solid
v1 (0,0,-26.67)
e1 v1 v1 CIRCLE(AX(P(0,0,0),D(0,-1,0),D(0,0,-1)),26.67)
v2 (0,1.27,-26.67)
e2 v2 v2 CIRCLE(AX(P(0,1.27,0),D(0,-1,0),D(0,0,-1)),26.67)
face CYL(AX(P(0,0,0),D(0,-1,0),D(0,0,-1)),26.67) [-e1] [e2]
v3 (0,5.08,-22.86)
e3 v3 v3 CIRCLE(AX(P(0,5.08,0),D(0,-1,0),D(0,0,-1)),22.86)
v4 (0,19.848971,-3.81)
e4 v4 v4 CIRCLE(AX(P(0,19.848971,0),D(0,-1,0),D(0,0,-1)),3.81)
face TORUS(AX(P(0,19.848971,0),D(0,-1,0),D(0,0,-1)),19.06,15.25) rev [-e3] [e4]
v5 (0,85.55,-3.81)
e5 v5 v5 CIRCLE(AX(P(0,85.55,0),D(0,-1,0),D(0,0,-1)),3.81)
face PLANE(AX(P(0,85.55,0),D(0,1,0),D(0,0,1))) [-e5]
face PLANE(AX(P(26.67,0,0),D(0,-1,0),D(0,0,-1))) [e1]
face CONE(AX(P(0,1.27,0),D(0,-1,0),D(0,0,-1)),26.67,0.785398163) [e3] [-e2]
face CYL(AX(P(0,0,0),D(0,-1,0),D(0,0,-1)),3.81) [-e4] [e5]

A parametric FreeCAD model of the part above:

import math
import FreeCAD as App
import Part
import Sketcher
from FreeCAD import Vector
Q = App.Units.Quantity

doc = App.newDocument("Part")
body = doc.addObject("PartDesign::Body", "Body")

sketch1 = doc.addObject("Sketcher::SketchObject", "Sketch")
body.addObject(sketch1)
sketch1.AttachmentSupport = (doc.XY_Plane, [""])
sketch1.MapMode = "FlatFace"
sketch1.addGeometry(Part.LineSegment(Vector(0, 85.55, 0), Vector(0, 0, 0)), False)
sketch1.addGeometry(Part.LineSegment(Vector(0, 0, 0), Vector(26.67, 0, 0)), False)
sketch1.addGeometry(Part.LineSegment(Vector(26.67, 0, 0), Vector(26.67, 1.27, 0)), False)
sketch1.addGeometry(Part.LineSegment(Vector(26.67, 1.27, 0), Vector(22.86, 5.08, 0)), False)
sketch1.addGeometry(Part.ArcOfCircle(Part.Circle(Vector(19.06, 19.848971, 0), Vector(0, 0, 1), 15.25), math.radians(-180), math.radians(-75.570986)), False)
sketch1.addGeometry(Part.LineSegment(Vector(3.81, 19.848971, 0), Vector(3.81, 85.55, 0)), False)
sketch1.addGeometry(Part.LineSegment(Vector(3.81, 85.55, 0), Vector(0, 85.55, 0)), False)
sketch1.addConstraint(Sketcher.Constraint("Coincident", 0, 2, 1, 1))
sketch1.addConstraint(Sketcher.Constraint("Coincident", 1, 2, 2, 1))
sketch1.addConstraint(Sketcher.Constraint("Coincident", 2, 2, 3, 1))
sketch1.addConstraint(Sketcher.Constraint("Coincident", 3, 2, 4, 2))
sketch1.addConstraint(Sketcher.Constraint("Tangent", 4, 1, 5, 1))
sketch1.addConstraint(Sketcher.Constraint("Coincident", 5, 2, 6, 1))
sketch1.addConstraint(Sketcher.Constraint("Coincident", 6, 2, 0, 1))
sketch1.addConstraint(Sketcher.Constraint("Vertical", 0))
sketch1.addConstraint(Sketcher.Constraint("Horizontal", 1))
sketch1.addConstraint(Sketcher.Constraint("Vertical", 2))
sketch1.addConstraint(Sketcher.Constraint("Vertical", 5))
sketch1.addConstraint(Sketcher.Constraint("Horizontal", 6))
sketch1.addConstraint(Sketcher.Constraint("Coincident", 0, 2, -1, 1))
sketch1.addConstraint(Sketcher.Constraint("Angle", 3, Q("135 deg")))
sketch1.addConstraint(Sketcher.Constraint("DistanceX", 1, 1, 1, 2, Q("1.05 in")))
sketch1.addConstraint(Sketcher.Constraint("DistanceX", 6, 2, 6, 1, Q("0.15 in")))
sketch1.addConstraint(Sketcher.Constraint("DistanceY", 2, 1, 2, 2, Q("0.05 in")))
sketch1.addConstraint(Sketcher.Constraint("DistanceX", -1, 1, 3, 2, Q("0.9 in")))
sketch1.addConstraint(Sketcher.Constraint("Radius", 4, 15.25))
sketch1.addConstraint(Sketcher.Constraint("DistanceY", 0, 2, 0, 1, 85.55))
revolution = doc.addObject("PartDesign::Revolution", "Revolution")
body.addObject(revolution)
revolution.Profile = sketch1
revolution.ReferenceAxis = (sketch1, ["V_Axis"])
revolution.Angle = 360

doc.recompute()
